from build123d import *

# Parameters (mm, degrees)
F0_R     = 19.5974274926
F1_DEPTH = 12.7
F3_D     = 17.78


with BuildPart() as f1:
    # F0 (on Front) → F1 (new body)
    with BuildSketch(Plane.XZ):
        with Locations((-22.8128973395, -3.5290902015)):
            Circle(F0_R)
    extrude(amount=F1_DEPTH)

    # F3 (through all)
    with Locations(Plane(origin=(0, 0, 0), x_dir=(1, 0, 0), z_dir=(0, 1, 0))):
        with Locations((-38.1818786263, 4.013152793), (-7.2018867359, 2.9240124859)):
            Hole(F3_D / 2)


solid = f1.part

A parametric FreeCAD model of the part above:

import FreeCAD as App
import Part
import Sketcher
from FreeCAD import Vector
Q = App.Units.Quantity

doc = App.newDocument("Part")
body = doc.addObject("PartDesign::Body", "Body")

# Sketch on XZ plane
sketch1 = doc.addObject("Sketcher::SketchObject", "Sketch")
body.addObject(sketch1)
sketch1.AttachmentSupport = (doc.XZ_Plane, [""])
sketch1.MapMode = "FlatFace"
sketch1.addGeometry(Part.Circle(Vector(-23, -4, 0), Vector(0, 0, 1), 20), False)
sketch1.addConstraint([
    Sketcher.Constraint("Diameter", 0, Q("39.194855 mm")),
    Sketcher.Constraint("DistanceY", 0, 3, -1, 1, Q("3.52909 mm")),
    Sketcher.Constraint("DistanceX", 0, 3, -1, 1, Q("22.812897 mm")),
])
pad1 = doc.addObject("PartDesign::Pad", "Pad")
body.addObject(pad1)
pad1.Profile = sketch1
pad1.Length = Q("0.5 in")

# Sketch on XZ plane
sketch2 = doc.addObject("Sketcher::SketchObject", "Sketch001")
body.addObject(sketch2)
sketch2.AttachmentSupport = (doc.XZ_Plane, [""])
sketch2.MapMode = "FlatFace"
sketch2.addGeometry([
    Part.Circle(Vector(-38, -4, 0), Vector(0, 0, 1), 9),
    Part.Circle(Vector(-7, -3, 0), Vector(0, 0, 1), 9),
], False)
sketch2.addConstraint([
    Sketcher.Constraint("Equal", 0, 1),
    Sketcher.Constraint("Diameter", 0, Q("0.7 in")),
    Sketcher.Constraint("DistanceX", 0, 3, -1, 1, Q("38.181879 mm")),
    Sketcher.Constraint("DistanceX", 0, 3, 1, 3, Q("30.979992 mm")),
    Sketcher.Constraint("DistanceY", 0, 3, 1, 3, Q("1.08914 mm")),
    Sketcher.Constraint("DistanceY", 0, 3, -1, 1, Q("4.013153 mm")),
])
doc.recompute()
hole = doc.addObject("PartDesign::Hole", "Hole")
body.addObject(hole)
hole.Profile = sketch2
hole.ThreadType = "None"
hole.Diameter = Q("0.7 in")
hole.DepthType = "ThroughAll"
hole.Reversed = True

doc.recompute()
